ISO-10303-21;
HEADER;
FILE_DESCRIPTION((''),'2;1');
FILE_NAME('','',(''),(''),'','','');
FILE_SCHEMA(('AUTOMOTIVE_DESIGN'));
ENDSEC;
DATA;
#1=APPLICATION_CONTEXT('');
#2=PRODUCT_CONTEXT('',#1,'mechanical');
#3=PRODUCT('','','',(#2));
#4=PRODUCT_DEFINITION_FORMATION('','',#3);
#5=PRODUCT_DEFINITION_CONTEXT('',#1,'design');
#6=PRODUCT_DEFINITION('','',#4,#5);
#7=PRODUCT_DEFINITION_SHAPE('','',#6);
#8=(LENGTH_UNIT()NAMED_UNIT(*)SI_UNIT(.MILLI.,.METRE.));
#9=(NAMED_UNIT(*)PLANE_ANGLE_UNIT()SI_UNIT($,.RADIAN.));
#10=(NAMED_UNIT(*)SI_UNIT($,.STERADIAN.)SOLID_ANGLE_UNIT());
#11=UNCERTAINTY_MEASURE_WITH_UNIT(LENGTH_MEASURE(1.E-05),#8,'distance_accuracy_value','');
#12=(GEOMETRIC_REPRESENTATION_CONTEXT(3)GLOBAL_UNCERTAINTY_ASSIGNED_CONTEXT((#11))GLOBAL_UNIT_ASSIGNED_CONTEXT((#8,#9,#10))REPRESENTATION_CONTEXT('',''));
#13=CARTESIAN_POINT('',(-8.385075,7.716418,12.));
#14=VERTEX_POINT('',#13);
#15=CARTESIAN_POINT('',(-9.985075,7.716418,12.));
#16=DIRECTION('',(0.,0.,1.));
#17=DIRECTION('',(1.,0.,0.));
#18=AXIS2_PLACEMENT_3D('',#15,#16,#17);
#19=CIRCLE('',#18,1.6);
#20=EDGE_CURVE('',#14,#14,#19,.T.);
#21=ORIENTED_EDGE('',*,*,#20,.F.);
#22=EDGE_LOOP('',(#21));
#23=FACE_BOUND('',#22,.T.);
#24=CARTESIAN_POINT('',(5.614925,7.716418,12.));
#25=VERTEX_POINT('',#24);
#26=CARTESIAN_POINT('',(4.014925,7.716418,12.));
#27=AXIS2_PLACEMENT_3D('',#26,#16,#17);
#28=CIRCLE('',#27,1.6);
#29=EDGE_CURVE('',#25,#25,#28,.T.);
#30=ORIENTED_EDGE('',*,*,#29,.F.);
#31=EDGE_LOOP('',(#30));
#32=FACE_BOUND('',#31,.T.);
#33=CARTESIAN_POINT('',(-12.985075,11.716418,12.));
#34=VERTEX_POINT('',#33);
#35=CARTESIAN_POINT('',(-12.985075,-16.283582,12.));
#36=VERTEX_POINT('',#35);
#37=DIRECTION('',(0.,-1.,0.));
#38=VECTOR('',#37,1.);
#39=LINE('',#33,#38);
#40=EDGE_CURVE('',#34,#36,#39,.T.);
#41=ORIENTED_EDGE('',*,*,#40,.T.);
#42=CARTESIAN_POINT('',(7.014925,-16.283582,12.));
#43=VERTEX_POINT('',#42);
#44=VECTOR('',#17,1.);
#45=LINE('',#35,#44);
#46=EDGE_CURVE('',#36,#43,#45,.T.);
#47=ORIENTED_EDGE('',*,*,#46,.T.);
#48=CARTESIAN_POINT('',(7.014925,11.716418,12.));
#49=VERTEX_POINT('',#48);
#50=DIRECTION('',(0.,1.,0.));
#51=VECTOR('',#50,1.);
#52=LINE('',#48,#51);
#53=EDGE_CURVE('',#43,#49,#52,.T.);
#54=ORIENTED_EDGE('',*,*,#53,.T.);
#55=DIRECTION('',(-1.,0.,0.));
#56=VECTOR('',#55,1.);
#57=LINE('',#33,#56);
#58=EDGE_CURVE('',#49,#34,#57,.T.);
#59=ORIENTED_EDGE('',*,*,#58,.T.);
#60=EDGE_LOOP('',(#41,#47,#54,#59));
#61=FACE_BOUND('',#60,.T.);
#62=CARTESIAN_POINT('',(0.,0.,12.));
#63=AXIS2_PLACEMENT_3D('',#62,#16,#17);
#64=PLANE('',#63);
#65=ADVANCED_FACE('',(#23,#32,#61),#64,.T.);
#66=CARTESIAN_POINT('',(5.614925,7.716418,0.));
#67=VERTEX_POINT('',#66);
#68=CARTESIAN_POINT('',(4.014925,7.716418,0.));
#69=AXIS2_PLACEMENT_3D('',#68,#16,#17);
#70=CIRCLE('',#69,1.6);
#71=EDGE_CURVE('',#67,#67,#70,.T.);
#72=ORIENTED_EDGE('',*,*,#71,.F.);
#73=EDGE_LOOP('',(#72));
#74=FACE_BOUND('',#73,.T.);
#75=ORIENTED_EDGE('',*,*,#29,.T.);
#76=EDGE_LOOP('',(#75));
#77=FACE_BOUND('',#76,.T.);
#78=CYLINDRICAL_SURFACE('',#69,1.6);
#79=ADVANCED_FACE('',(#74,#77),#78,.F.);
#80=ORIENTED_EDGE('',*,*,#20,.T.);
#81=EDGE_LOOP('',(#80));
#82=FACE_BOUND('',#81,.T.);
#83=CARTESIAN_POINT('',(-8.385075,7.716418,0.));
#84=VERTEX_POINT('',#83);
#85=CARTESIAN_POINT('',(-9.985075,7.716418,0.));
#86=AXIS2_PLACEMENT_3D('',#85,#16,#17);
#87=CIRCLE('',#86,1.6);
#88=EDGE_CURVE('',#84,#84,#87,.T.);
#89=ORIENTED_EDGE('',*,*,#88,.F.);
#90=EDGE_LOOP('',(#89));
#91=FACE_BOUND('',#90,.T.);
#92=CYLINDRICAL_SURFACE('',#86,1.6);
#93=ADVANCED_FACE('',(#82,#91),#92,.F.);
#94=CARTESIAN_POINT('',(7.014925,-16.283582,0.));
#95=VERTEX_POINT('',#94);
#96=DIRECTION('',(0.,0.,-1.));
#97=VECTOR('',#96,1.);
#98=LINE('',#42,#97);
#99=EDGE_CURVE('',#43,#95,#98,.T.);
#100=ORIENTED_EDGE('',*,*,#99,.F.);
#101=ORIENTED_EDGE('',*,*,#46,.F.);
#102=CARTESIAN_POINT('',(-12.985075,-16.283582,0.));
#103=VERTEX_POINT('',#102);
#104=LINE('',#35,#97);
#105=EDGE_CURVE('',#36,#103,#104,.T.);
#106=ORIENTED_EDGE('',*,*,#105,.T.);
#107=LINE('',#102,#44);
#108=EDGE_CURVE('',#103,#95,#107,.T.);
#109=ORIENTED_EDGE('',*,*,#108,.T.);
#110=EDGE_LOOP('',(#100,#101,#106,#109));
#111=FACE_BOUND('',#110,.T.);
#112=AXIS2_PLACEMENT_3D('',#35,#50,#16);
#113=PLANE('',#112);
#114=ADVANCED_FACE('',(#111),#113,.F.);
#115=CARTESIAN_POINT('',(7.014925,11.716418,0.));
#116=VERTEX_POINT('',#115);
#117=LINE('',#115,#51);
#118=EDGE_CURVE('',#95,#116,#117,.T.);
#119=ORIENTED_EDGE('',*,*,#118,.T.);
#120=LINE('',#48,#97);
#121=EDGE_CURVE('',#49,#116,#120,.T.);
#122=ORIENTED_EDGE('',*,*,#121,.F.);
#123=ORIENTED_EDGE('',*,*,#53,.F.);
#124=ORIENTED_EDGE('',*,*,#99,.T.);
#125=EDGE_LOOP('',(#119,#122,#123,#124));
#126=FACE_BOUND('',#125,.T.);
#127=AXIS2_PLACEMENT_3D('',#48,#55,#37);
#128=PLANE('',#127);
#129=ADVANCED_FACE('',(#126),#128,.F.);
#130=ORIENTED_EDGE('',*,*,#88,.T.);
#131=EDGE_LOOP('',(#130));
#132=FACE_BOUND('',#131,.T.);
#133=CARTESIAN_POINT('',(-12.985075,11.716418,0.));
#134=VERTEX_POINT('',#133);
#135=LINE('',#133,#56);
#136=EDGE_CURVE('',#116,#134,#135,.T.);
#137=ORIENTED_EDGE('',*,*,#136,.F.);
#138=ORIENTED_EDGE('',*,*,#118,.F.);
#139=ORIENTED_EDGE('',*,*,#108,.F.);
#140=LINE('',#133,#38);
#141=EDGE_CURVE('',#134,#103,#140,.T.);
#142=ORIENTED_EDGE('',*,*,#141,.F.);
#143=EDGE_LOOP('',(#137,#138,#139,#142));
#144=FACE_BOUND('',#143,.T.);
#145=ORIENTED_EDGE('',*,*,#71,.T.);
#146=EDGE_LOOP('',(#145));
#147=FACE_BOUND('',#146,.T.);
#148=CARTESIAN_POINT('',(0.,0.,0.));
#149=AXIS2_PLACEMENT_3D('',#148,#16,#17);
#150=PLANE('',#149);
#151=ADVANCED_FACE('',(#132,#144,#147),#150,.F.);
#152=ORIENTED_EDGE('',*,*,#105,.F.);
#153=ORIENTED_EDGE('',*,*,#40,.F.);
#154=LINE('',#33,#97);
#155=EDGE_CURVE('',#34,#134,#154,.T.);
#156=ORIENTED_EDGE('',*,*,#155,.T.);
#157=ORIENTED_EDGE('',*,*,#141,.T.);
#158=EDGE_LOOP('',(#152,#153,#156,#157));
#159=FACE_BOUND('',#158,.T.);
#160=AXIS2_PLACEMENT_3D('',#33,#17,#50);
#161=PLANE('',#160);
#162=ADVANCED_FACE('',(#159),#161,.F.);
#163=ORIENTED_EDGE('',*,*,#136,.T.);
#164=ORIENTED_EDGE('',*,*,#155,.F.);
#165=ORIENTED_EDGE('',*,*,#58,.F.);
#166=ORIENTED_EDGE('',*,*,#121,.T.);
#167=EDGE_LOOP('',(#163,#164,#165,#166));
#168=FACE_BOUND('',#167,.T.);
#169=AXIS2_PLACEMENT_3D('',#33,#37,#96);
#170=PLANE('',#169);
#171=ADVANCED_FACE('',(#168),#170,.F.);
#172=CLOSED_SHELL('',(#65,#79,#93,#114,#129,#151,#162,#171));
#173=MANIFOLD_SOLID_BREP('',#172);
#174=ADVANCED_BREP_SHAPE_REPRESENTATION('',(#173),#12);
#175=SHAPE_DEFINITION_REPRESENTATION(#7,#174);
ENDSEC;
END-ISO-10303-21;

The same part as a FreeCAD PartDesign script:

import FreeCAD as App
import Part
import Sketcher
Q = App.Units.Quantity

doc = App.newDocument("Part")
body = doc.addObject("PartDesign::Body", "Body")

# Sketch on XY plane
sketch1 = body.newObject("Sketcher::SketchObject", "Sketch")
sketch1.AttachmentSupport = (doc.getObject("XY_Plane"), [""])
sketch1.MapMode = "FlatFace"
sketch1.addGeometry([
    Part.LineSegment(App.Vector(-13, 12, 0), App.Vector(-13, -16, 0)),
    Part.LineSegment(App.Vector(-13, -16, 0), App.Vector(7, -16, 0)),
    Part.LineSegment(App.Vector(7, -16, 0), App.Vector(7, 12, 0)),
    Part.LineSegment(App.Vector(7, 12, 0), App.Vector(-13, 12, 0)),
], False)
sketch1.addConstraint([
    Sketcher.Constraint("Coincident", 0, 2, 1, 1),
    Sketcher.Constraint("Coincident", 1, 2, 2, 1),
    Sketcher.Constraint("Coincident", 2, 2, 3, 1),
    Sketcher.Constraint("Coincident", 3, 2, 0, 1),
    Sketcher.Constraint("Vertical", 0),
    Sketcher.Constraint("Horizontal", 1),
    Sketcher.Constraint("Vertical", 2),
    Sketcher.Constraint("Horizontal", 3),
    Sketcher.Constraint("DistanceX", 1, 1, 1, 2, Q("20 mm")),
    Sketcher.Constraint("DistanceY", 0, 2, 0, 1, Q("28 mm")),
    Sketcher.Constraint("DistanceX", 0, 2, -1, 1, Q("12.985075 mm")),
    Sketcher.Constraint("DistanceY", 0, 2, -1, 1, Q("16.283582 mm")),
])
pad1 = body.newObject("PartDesign::Pad", "Pad")
pad1.Profile = sketch1
pad1.Length = 12

# Sketch on XY plane
sketch2 = body.newObject("Sketcher::SketchObject", "Sketch001")
sketch2.AttachmentSupport = (doc.getObject("XY_Plane"), [""])
sketch2.MapMode = "FlatFace"
sketch2.AttachmentOffset = App.Placement(App.Vector(0, 0, 12), App.Rotation())
sketch2.addGeometry([
    Part.Circle(App.Vector(-10, 7.7, 0), App.Vector(0, 0, 1), 1.6),
    Part.Circle(App.Vector(4, 7.7, 0), App.Vector(0, 0, 1), 1.6),
], False)
sketch2.addConstraint([
    Sketcher.Constraint("Equal", 0, 1),
    Sketcher.Constraint("Horizontal", 0, 3, 1, 3),
    Sketcher.Constraint("Diameter", 0, Q("3.2 mm")),
    Sketcher.Constraint("DistanceX", 0, 3, 1, 3, Q("14 mm")),
    Sketcher.Constraint("DistanceX", 0, 3, -1, 1, Q("9.985075 mm")),
    Sketcher.Constraint("DistanceY", -1, 1, 0, 3, Q("7.716418 mm")),
])
pocket1 = body.newObject("PartDesign::Pocket", "Pocket")
pocket1.Profile = sketch2
pocket1.Type = "ThroughAll"

doc.recompute()
